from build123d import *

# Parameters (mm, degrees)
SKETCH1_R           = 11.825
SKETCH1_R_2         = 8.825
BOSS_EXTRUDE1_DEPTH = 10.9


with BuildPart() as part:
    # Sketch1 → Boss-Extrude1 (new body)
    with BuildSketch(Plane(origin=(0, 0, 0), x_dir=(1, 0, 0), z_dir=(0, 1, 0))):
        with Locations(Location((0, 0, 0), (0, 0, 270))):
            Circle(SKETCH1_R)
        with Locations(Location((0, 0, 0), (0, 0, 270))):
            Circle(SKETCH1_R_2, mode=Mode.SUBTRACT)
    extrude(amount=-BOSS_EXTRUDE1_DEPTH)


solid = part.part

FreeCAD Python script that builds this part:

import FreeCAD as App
import Part
import Sketcher

V = App.Vector
Q = App.Units.Quantity

doc = App.newDocument("Part")
body = doc.addObject("PartDesign::Body", "Body")

sketch1 = body.newObject("Sketcher::SketchObject", "Sketch")
sketch1.AttachmentSupport = (doc.getObject("XZ_Plane"), [""])
sketch1.MapMode = "FlatFace"
sketch1.addGeometry([
    Part.Circle(V(0, 0, 0), V(0, 0, 1), 12),
    Part.Circle(V(0, 0, 0), V(0, 0, 1), 9),
], False)
sketch1.addConstraint([
    Sketcher.Constraint("Coincident", 0, 3, -1, 1),
    Sketcher.Constraint("Coincident", 1, 3, -1, 1),
    Sketcher.Constraint("Diameter", 0, Q("23.65 mm")),
    Sketcher.Constraint("Diameter", 1, Q("17.65 mm")),
])
pad1 = body.newObject("PartDesign::Pad", "Pad")
pad1.Profile = sketch1
pad1.Length = 10.9

doc.recompute()
